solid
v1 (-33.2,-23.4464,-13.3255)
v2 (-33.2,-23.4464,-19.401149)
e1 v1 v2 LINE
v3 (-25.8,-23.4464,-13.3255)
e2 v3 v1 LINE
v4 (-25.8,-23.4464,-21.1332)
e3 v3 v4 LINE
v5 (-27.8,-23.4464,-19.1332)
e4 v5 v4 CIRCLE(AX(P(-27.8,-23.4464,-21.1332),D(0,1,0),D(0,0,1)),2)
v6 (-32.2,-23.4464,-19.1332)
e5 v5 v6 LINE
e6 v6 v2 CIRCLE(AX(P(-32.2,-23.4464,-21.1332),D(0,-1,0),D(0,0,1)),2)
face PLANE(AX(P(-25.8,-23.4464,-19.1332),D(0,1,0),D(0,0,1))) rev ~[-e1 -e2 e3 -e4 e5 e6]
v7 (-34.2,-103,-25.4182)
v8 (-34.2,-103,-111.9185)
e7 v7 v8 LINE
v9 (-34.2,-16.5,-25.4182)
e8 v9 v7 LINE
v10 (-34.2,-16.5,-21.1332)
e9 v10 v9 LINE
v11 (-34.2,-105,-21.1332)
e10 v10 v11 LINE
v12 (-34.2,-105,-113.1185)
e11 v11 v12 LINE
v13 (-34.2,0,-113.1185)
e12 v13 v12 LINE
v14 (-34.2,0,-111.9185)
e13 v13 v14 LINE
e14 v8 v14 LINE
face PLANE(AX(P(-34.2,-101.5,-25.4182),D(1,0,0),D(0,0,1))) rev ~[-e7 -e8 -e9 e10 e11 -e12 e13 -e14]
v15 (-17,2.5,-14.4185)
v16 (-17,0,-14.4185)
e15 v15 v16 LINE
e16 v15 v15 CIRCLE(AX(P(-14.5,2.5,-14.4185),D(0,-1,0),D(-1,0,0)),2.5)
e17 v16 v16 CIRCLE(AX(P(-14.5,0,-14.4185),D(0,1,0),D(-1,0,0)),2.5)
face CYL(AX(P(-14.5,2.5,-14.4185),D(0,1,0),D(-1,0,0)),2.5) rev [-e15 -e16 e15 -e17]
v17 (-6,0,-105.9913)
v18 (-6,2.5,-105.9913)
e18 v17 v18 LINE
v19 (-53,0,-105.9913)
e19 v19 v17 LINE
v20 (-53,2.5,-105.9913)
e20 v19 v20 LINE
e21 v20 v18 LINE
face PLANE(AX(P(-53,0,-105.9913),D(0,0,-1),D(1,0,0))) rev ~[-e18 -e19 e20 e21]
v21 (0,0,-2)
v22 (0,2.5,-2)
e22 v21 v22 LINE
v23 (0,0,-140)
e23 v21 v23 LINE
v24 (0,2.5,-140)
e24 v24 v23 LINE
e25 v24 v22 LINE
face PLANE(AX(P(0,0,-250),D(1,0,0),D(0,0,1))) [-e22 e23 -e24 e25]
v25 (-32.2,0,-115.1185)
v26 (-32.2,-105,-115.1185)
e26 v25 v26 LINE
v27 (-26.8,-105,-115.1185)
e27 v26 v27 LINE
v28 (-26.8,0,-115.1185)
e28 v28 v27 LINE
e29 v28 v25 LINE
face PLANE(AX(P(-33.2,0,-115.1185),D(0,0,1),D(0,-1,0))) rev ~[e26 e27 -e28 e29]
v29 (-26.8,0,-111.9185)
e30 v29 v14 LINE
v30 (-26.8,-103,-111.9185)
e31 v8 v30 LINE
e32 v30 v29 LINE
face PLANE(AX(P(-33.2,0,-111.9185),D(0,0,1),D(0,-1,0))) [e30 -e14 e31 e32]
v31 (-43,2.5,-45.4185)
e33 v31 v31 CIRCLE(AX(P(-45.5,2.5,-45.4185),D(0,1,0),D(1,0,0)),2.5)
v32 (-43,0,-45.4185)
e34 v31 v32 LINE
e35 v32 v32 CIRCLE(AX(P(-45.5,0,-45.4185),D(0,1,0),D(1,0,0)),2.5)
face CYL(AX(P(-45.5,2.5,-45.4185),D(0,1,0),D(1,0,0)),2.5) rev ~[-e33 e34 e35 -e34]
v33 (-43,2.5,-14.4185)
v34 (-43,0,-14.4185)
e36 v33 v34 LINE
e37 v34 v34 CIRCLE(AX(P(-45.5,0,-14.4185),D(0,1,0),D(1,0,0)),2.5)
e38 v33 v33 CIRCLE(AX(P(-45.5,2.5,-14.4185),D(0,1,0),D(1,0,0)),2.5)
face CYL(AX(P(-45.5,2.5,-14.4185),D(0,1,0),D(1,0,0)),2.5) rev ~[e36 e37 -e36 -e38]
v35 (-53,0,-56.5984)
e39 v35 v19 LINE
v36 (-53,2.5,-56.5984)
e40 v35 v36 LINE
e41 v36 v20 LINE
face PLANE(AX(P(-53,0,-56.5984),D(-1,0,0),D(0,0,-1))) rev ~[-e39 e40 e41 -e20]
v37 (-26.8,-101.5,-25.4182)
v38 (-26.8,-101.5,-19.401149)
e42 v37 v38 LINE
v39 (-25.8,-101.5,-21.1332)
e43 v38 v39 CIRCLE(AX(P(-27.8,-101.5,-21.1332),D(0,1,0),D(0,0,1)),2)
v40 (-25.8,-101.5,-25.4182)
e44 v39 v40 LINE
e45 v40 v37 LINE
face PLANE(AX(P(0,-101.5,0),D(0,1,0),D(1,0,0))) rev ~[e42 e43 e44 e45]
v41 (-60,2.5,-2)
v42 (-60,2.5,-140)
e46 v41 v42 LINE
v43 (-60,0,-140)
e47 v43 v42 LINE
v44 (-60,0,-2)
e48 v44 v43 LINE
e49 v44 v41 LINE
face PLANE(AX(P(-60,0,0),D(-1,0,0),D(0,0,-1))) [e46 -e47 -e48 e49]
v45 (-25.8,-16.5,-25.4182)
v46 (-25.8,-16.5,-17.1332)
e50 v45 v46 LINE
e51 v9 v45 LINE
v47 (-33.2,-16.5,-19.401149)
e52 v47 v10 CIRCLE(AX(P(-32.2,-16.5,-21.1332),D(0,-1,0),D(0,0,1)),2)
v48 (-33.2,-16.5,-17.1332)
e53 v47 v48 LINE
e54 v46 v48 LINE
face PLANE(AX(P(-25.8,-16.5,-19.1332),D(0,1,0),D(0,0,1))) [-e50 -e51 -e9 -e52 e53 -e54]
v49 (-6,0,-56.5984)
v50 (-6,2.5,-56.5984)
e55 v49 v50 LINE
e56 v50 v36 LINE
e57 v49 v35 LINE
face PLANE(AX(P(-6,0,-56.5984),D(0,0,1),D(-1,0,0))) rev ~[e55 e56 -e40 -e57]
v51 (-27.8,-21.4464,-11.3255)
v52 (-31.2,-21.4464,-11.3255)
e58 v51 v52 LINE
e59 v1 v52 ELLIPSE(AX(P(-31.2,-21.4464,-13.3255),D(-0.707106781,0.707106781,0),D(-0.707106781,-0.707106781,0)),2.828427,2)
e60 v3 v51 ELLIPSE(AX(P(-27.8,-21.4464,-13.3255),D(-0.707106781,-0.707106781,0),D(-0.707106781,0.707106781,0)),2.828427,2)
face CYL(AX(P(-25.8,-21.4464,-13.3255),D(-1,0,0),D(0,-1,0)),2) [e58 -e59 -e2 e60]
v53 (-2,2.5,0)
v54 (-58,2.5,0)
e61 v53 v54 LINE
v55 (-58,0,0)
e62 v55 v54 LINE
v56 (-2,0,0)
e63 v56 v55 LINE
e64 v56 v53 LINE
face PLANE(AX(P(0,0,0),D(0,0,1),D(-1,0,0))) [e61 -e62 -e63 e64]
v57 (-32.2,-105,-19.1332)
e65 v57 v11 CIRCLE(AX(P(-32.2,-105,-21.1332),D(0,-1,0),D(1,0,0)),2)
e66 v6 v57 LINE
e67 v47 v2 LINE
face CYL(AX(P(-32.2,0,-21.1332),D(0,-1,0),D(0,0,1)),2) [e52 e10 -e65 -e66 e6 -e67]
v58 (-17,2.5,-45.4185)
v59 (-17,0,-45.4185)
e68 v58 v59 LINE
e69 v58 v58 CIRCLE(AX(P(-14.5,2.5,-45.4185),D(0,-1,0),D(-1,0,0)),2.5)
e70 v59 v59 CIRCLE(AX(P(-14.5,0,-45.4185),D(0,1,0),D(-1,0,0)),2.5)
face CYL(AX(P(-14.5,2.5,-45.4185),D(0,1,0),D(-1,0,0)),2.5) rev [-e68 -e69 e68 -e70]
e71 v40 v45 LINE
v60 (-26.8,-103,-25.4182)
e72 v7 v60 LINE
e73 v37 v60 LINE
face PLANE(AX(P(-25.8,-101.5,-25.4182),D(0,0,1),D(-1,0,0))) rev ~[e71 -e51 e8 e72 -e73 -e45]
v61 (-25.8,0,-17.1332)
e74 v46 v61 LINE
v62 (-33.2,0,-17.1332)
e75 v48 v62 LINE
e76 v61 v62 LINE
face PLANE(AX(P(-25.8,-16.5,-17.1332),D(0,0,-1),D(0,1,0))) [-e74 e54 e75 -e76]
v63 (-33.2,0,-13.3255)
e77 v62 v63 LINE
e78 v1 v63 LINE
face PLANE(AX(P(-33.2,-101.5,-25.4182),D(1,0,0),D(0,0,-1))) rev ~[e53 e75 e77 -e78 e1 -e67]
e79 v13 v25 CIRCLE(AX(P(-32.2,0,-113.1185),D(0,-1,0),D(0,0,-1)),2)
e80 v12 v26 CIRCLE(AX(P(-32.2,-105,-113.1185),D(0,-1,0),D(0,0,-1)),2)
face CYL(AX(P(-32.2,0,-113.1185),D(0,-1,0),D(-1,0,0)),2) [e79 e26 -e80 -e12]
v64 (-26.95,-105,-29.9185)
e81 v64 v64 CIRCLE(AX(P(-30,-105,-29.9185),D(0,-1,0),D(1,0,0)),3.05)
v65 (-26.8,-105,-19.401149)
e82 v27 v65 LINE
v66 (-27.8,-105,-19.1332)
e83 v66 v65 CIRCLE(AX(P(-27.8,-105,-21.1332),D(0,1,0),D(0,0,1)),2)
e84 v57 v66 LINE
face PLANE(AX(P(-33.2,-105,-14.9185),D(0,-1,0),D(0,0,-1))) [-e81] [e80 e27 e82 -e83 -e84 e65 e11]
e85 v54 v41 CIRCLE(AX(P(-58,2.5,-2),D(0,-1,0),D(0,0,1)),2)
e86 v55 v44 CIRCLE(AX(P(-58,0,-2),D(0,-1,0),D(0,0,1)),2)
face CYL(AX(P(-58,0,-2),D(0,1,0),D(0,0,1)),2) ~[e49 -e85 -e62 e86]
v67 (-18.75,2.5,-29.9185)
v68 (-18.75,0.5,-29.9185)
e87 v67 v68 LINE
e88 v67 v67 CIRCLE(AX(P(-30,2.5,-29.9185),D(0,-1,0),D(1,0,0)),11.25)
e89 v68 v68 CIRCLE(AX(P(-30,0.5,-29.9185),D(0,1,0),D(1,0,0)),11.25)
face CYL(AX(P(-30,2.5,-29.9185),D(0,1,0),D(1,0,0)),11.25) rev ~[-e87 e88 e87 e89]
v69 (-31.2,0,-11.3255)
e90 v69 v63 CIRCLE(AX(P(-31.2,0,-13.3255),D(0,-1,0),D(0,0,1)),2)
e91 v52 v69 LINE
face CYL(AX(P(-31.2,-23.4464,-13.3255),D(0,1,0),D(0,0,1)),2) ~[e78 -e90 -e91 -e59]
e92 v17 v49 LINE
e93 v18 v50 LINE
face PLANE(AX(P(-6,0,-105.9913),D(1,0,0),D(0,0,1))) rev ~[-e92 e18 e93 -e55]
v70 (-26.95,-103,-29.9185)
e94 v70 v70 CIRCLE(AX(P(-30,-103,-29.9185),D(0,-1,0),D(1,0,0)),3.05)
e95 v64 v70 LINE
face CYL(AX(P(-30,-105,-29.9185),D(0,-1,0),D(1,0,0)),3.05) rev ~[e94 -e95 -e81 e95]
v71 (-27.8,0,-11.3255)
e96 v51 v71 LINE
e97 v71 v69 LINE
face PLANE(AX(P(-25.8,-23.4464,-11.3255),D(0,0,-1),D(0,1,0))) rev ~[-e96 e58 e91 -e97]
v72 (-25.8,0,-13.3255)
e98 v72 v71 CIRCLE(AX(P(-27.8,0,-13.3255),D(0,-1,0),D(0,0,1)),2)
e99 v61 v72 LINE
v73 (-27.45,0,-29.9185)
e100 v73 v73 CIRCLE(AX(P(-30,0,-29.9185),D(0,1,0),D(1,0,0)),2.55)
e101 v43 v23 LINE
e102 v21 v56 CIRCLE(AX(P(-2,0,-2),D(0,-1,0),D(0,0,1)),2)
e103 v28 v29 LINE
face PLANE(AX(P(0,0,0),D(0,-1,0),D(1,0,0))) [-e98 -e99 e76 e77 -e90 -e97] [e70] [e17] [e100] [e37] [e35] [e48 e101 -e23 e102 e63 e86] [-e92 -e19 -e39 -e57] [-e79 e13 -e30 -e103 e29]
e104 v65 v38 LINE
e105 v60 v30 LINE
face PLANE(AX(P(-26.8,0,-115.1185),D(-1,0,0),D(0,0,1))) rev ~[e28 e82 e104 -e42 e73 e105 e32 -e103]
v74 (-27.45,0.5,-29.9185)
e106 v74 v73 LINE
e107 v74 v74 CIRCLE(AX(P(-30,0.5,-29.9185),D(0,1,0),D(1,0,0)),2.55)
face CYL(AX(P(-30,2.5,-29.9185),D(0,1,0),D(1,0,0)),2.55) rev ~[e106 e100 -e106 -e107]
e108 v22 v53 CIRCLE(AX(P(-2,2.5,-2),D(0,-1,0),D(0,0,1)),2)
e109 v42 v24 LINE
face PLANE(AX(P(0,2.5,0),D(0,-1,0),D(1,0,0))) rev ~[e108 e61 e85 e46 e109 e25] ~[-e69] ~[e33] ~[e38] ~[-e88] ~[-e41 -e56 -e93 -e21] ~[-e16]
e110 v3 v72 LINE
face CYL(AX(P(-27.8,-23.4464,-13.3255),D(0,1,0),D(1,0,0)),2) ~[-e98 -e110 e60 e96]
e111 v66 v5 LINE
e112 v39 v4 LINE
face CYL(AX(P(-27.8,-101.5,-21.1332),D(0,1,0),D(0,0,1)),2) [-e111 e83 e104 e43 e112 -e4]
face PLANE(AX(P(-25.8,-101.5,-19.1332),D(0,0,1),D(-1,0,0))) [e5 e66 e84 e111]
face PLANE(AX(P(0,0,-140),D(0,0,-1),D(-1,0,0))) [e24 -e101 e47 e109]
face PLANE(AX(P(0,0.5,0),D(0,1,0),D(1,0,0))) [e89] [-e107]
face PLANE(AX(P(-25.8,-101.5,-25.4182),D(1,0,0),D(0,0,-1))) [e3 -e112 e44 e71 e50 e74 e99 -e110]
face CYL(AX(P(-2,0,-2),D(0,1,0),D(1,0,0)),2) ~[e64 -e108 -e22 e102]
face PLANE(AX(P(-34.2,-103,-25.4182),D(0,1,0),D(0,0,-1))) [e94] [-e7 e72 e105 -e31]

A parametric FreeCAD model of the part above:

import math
import FreeCAD as App
import Part
import Sketcher

V = App.Vector
Q = App.Units.Quantity


def edges_at(feature, points):
    """Names of the edges that pass closest to the given points."""
    edges = feature.Shape.Edges
    near = lambda p: min(range(len(edges)), key=lambda i: edges[i].distToShape(Part.Vertex(*p))[0])
    return sorted({f"Edge{near(p) + 1}" for p in points})

doc = App.newDocument("Part")
body = doc.addObject("PartDesign::Body", "Body")

# Sketch on XZ plane
sketch1 = body.newObject("Sketcher::SketchObject", "Sketch")
sketch1.AttachmentSupport = (doc.getObject("XZ_Plane"), [""])
sketch1.MapMode = "FlatFace"
sketch1.addGeometry([
    Part.LineSegment(V(-60, 0, 0), V(0, 0, 0)),
    Part.LineSegment(V(0, 0, 0), V(0, -140, 0)),
    Part.LineSegment(V(0, -140, 0), V(-60, -140, 0)),
    Part.LineSegment(V(-60, -140, 0), V(-60, 0, 0)),
], False)
sketch1.addConstraint([
    Sketcher.Constraint("Coincident", 0, 2, 1, 1),
    Sketcher.Constraint("Coincident", 1, 2, 2, 1),
    Sketcher.Constraint("Coincident", 2, 2, 3, 1),
    Sketcher.Constraint("Coincident", 3, 2, 0, 1),
    Sketcher.Constraint("Horizontal", 0),
    Sketcher.Constraint("Vertical", 1),
    Sketcher.Constraint("Horizontal", 2),
    Sketcher.Constraint("Vertical", 3),
    Sketcher.Constraint("Coincident", 0, 2, -1, 1),
    Sketcher.Constraint("DistanceX", 0, 1, 0, 2, Q("60 mm")),
    Sketcher.Constraint("DistanceY", 1, 2, 1, 1, Q("140 mm")),
])
pad1 = body.newObject("PartDesign::Pad", "Pad")
pad1.Profile = sketch1
pad1.Length = 2.5
pad1.Reversed = True

# Sketch on XZ plane
sketch2 = body.newObject("Sketcher::SketchObject", "Sketch001")
sketch2.AttachmentSupport = (doc.getObject("XZ_Plane"), [""])
sketch2.MapMode = "FlatFace"
sketch2.AttachmentOffset = App.Placement(V(0, 0, -2.5), App.Rotation())
sketch2.addGeometry(Part.Circle(V(-30, -29.9, 0), V(0, 0, 1), 2.5), False)
sketch2.addConstraint([
    Sketcher.Constraint("Diameter", 0, Q("5.1 mm")),
    Sketcher.Constraint("DistanceX", 0, 3, -1, 1, Q("30 mm")),
    Sketcher.Constraint("DistanceY", 0, 3, -1, 1, Q("29.9185 mm")),
])
pocket1 = body.newObject("PartDesign::Pocket", "Pocket")
pocket1.Profile = sketch2
pocket1.Length = 10
pocket1.Midplane = True

# Sketch on XZ plane
sketch3 = body.newObject("Sketcher::SketchObject", "Sketch002")
sketch3.AttachmentSupport = (doc.getObject("XZ_Plane"), [""])
sketch3.MapMode = "FlatFace"
sketch3.AttachmentOffset = App.Placement(V(0, 0, -2.5), App.Rotation())
sketch3.addGeometry(Part.Circle(V(-30, -30, 0), V(0, 0, 1), 11), False)
sketch3.addConstraint([
    Sketcher.Constraint("Diameter", 0, Q("22.5 mm")),
    Sketcher.Constraint("DistanceX", 0, 3, -1, 1, Q("30 mm")),
    Sketcher.Constraint("DistanceY", 0, 3, -1, 1, Q("29.9185 mm")),
])
pocket2 = body.newObject("PartDesign::Pocket", "Pocket001")
pocket2.Profile = sketch3
pocket2.Length = 10
pocket2.Reversed = True

# Sketch on XZ plane
sketch4 = body.newObject("Sketcher::SketchObject", "Sketch003")
sketch4.AttachmentSupport = (doc.getObject("XZ_Plane"), [""])
sketch4.MapMode = "FlatFace"
sketch4.AttachmentOffset = App.Placement(V(0, 0, -2.5), App.Rotation())
sketch4.addGeometry(Part.Circle(V(-30, -30, 0), V(0, 0, 1), 11), False)
sketch4.addConstraint([
    Sketcher.Constraint("Diameter", 0, Q("22.5 mm")),
    Sketcher.Constraint("DistanceX", 0, 3, -1, 1, Q("30 mm")),
    Sketcher.Constraint("DistanceY", 0, 3, -1, 1, Q("29.9185 mm")),
])
pocket3 = body.newObject("PartDesign::Pocket", "Pocket002")
pocket3.Profile = sketch4
pocket3.Length = 10
pocket3.Reversed = True

# Sketch on XZ plane
sketch5 = body.newObject("Sketcher::SketchObject", "Sketch004")
sketch5.AttachmentSupport = (doc.getObject("XZ_Plane"), [""])
sketch5.MapMode = "FlatFace"
sketch5.addGeometry([
    Part.LineSegment(V(-26.8, -115.1, 0), V(-26.8, -111.9, 0)),
    Part.LineSegment(V(-26.8, -111.9, 0), V(-33.2, -111.9, 0)),
    Part.LineSegment(V(-33.2, -111.9, 0), V(-33.2, -115.1, 0)),
    Part.LineSegment(V(-33.2, -115.1, 0), V(-26.8, -115.1, 0)),
], False)
sketch5.addConstraint([
    Sketcher.Constraint("Coincident", 0, 2, 1, 1),
    Sketcher.Constraint("Coincident", 1, 2, 2, 1),
    Sketcher.Constraint("Coincident", 2, 2, 3, 1),
    Sketcher.Constraint("Coincident", 3, 2, 0, 1),
    Sketcher.Constraint("Vertical", 0),
    Sketcher.Constraint("Horizontal", 1),
    Sketcher.Constraint("Vertical", 2),
    Sketcher.Constraint("Horizontal", 3),
    Sketcher.Constraint("DistanceY", 0, 1, 0, 2, Q("3.2 mm")),
    Sketcher.Constraint("DistanceX", 1, 2, 1, 1, Q("6.4 mm")),
    Sketcher.Constraint("DistanceX", 0, 2, -1, 1, Q("26.8 mm")),
    Sketcher.Constraint("DistanceY", 0, 2, -1, 1, Q("111.9185 mm")),
])
pad2 = body.newObject("PartDesign::Pad", "Pad001")
pad2.Profile = sketch5
pad2.Length = 105

# Sketch on XZ plane
sketch6 = body.newObject("Sketcher::SketchObject", "Sketch005")
sketch6.AttachmentSupport = (doc.getObject("XZ_Plane"), [""])
sketch6.MapMode = "FlatFace"
sketch6.AttachmentOffset = App.Placement(V(0, 0, 105), App.Rotation())
sketch6.addGeometry([
    Part.LineSegment(V(-33.2, -111.9, 0), V(-26.8, -111.9, 0)),  # 0
    Part.LineSegment(V(-26.8, -111.9, 0), V(-26.8, -14.9, 0)),  # 1
    Part.LineSegment(V(-26.8, -14.9, 0), V(-33.2, -14.9, 0)),  # 2
    Part.LineSegment(V(-33.2, -14.9, 0), V(-33.2, -111.9, 0)),  # 3
    Part.Circle(V(-30, -29.9, 0), V(0, 0, 1), 2.5),  # 4
], False)
sketch6.addConstraint([
    Sketcher.Constraint("Coincident", 0, 2, 1, 1),
    Sketcher.Constraint("Coincident", 1, 2, 2, 1),
    Sketcher.Constraint("Coincident", 2, 2, 3, 1),
    Sketcher.Constraint("Coincident", 3, 2, 0, 1),
    Sketcher.Constraint("Horizontal", 0),
    Sketcher.Constraint("Vertical", 1),
    Sketcher.Constraint("Horizontal", 2),
    Sketcher.Constraint("Vertical", 3),
    Sketcher.Constraint("DistanceY", 4, 3, 1, 2, Q("15 mm")),
    Sketcher.Constraint("Diameter", 4, Q("5.1 mm")),
    Sketcher.Constraint("DistanceY", 1, 1, 1, 2, Q("97 mm")),
    Sketcher.Constraint("DistanceX", 0, 1, 0, 2, Q("6.4 mm")),
    Sketcher.Constraint("DistanceX", 4, 3, -1, 1, Q("30 mm")),
    Sketcher.Constraint("DistanceX", 0, 2, -1, 1, Q("26.8 mm")),
    Sketcher.Constraint("DistanceY", 4, 3, -1, 1, Q("29.9185 mm")),
])
pad3 = body.newObject("PartDesign::Pad", "Pad002")
pad3.Profile = sketch6
pad3.Length = 3.5
pad3.Reversed = True

# Sketch on XZ plane
sketch7 = body.newObject("Sketcher::SketchObject", "Sketch006")
sketch7.AttachmentSupport = (doc.getObject("XZ_Plane"), [""])
sketch7.MapMode = "FlatFace"
sketch7.AttachmentOffset = App.Placement(V(0, 0, 105), App.Rotation())
sketch7.addGeometry([
    Part.ArcOfCircle(Part.Circle(V(-30, -29.9, 0), V(0, 0, 1), 11.2), math.radians(73), math.radians(107)),
    Part.LineSegment(V(-26.8, -19.1, 0), V(-26.8, -14.9, 0)),
    Part.LineSegment(V(-26.8, -14.9, 0), V(-33.2, -14.9, 0)),
    Part.LineSegment(V(-33.2, -14.9, 0), V(-33.2, -19.1, 0)),
], False)
sketch7.addConstraint([
    Sketcher.Constraint("Coincident", 0, 1, 1, 1),
    Sketcher.Constraint("Coincident", 1, 2, 2, 1),
    Sketcher.Constraint("Coincident", 2, 2, 3, 1),
    Sketcher.Constraint("Coincident", 3, 2, 0, 2),
    Sketcher.Constraint("Vertical", 1),
    Sketcher.Constraint("Horizontal", 2),
    Sketcher.Constraint("Vertical", 3),
    Sketcher.Constraint("Horizontal", 0, 1, 3, 2),
    Sketcher.Constraint("Radius", 0, Q("11.25 mm")),
    Sketcher.Constraint("DistanceX", 2, 2, 2, 1, Q("6.4 mm")),
    Sketcher.Constraint("DistanceX", 0, 3, -1, 1, Q("30 mm")),
    Sketcher.Constraint("DistanceY", 0, 3, 1, 2, Q("15 mm")),
    Sketcher.Constraint("DistanceY", 0, 3, -1, 1, Q("29.9185 mm")),
])
pad4 = body.newObject("PartDesign::Pad", "Pad003")
pad4.Profile = sketch7
pad4.Length = 105
pad4.Reversed = True

# Sketch on XZ plane
sketch8 = body.newObject("Sketcher::SketchObject", "Sketch007")
sketch8.AttachmentSupport = (doc.getObject("XZ_Plane"), [""])
sketch8.MapMode = "FlatFace"
sketch8.AttachmentOffset = App.Placement(V(0, 0, 105), App.Rotation())
sketch8.addGeometry([
    Part.Circle(V(-30, -29.9, 0), V(0, 0, 1), 3),
    Part.Circle(V(-30, -29.9, 0), V(0, 0, 1), 2.5),
], False)
sketch8.addConstraint([
    Sketcher.Constraint("Coincident", 1, 3, 0, 3),
    Sketcher.Constraint("Diameter", 0, Q("6.1 mm")),
    Sketcher.Constraint("Diameter", 1, Q("5.1 mm")),
    Sketcher.Constraint("DistanceX", 0, 3, -1, 1, Q("30 mm")),
    Sketcher.Constraint("DistanceY", 0, 3, -1, 1, Q("29.9185 mm")),
])
pocket4 = body.newObject("PartDesign::Pocket", "Pocket003")
pocket4.Profile = sketch8
pocket4.Length = 3.5

# Sketch on YZ plane
sketch9 = body.newObject("Sketcher::SketchObject", "Sketch008")
sketch9.AttachmentSupport = (doc.getObject("YZ_Plane"), [""])
sketch9.MapMode = "FlatFace"
sketch9.AttachmentOffset = App.Placement(V(0, 0, -33.2), App.Rotation())
sketch9.addGeometry([
    Part.LineSegment(V(-101.5, -19.1, 0), V(-101.5, -111.9, 0)),  # 0
    Part.LineSegment(V(-101.5, -111.9, 0), V(0, -111.9, 0)),  # 1
    Part.LineSegment(V(0, -111.9, 0), V(0, -115.1, 0)),  # 2
    Part.LineSegment(V(0, -115.1, 0), V(-105, -115.1, 0)),  # 3
    Part.LineSegment(V(-105, -115.1, 0), V(-105, -14.9, 0)),  # 4
    Part.LineSegment(V(-105, -14.9, 0), V(0, -14.9, 0)),  # 5
    Part.LineSegment(V(0, -14.9, 0), V(0, -19.1, 0)),  # 6
    Part.LineSegment(V(0, -19.1, 0), V(-101.5, -19.1, 0)),  # 7
], False)
sketch9.addConstraint([
    Sketcher.Constraint("Coincident", 0, 2, 1, 1),
    Sketcher.Constraint("Coincident", 1, 2, 2, 1),
    Sketcher.Constraint("Coincident", 2, 2, 3, 1),
    Sketcher.Constraint("Coincident", 3, 2, 4, 1),
    Sketcher.Constraint("Coincident", 4, 2, 5, 1),
    Sketcher.Constraint("Coincident", 5, 2, 6, 1),
    Sketcher.Constraint("Coincident", 6, 2, 7, 1),
    Sketcher.Constraint("Coincident", 7, 2, 0, 1),
    Sketcher.Constraint("Vertical", 0),
    Sketcher.Constraint("Horizontal", 1),
    Sketcher.Constraint("Vertical", 2),
    Sketcher.Constraint("Horizontal", 3),
    Sketcher.Constraint("Vertical", 4),
    Sketcher.Constraint("Horizontal", 5),
    Sketcher.Constraint("Vertical", 6),
    Sketcher.Constraint("Horizontal", 7),
    Sketcher.Constraint("PointOnObject", 1, 2, -2),
    Sketcher.Constraint("PointOnObject", 5, 2, -2),
    Sketcher.Constraint("DistanceX", 3, 2, 3, 1, Q("105 mm")),
    Sketcher.Constraint("DistanceX", 1, 1, 1, 2, Q("101.5 mm")),
    Sketcher.Constraint("DistanceY", 2, 2, 2, 1, Q("3.2 mm")),
    Sketcher.Constraint("DistanceY", 4, 1, 4, 2, Q("100.2 mm")),
    Sketcher.Constraint("DistanceY", 0, 2, 0, 1, Q("92.7853 mm")),
    Sketcher.Constraint("DistanceY", 0, 2, -1, 1, Q("111.9185 mm")),
])
pad5 = body.newObject("PartDesign::Pad", "Pad004")
pad5.Profile = sketch9
pad5.Length = 1
pad5.Reversed = True

# Sketch on XZ plane
sketch10 = body.newObject("Sketcher::SketchObject", "Sketch009")
sketch10.AttachmentSupport = (doc.getObject("XZ_Plane"), [""])
sketch10.MapMode = "FlatFace"
sketch10.AttachmentOffset = App.Placement(V(0, 0, -2.5), App.Rotation())
sketch10.addGeometry([
    Part.Circle(V(-30, -29.9, 0), V(0, 0, 1), 11.2),
    Part.Circle(V(-30, -29.9, 0), V(0, 0, 1), 2.5),
], False)
sketch10.addConstraint([
    Sketcher.Constraint("Coincident", 1, 3, 0, 3),
    Sketcher.Constraint("Diameter", 0, Q("22.5 mm")),
    Sketcher.Constraint("Diameter", 1, Q("5.1 mm")),
    Sketcher.Constraint("DistanceX", 0, 3, -1, 1, Q("30 mm")),
    Sketcher.Constraint("DistanceY", 0, 3, -1, 1, Q("29.9185 mm")),
])
pad6 = body.newObject("PartDesign::Pad", "Pad005")
pad6.Profile = sketch10
pad6.Length = 2.5

# Sketch on XZ plane
sketch11 = body.newObject("Sketcher::SketchObject", "Sketch010")
sketch11.AttachmentSupport = (doc.getObject("XZ_Plane"), [""])
sketch11.MapMode = "FlatFace"
sketch11.AttachmentOffset = App.Placement(V(0, 0, -2.5), App.Rotation())
sketch11.addGeometry([
    Part.Circle(V(-30, -29.9, 0), V(0, 0, 1), 11.2),
    Part.Circle(V(-30, -29.9, 0), V(0, 0, 1), 2.5),
], False)
sketch11.addConstraint([
    Sketcher.Constraint("Coincident", 1, 3, 0, 3),
    Sketcher.Constraint("Diameter", 0, Q("22.5 mm")),
    Sketcher.Constraint("Diameter", 1, Q("5.1 mm")),
    Sketcher.Constraint("DistanceX", 0, 3, -1, 1, Q("30 mm")),
    Sketcher.Constraint("DistanceY", 0, 3, -1, 1, Q("29.9185 mm")),
])
pocket5 = body.newObject("PartDesign::Pocket", "Pocket004")
pocket5.Profile = sketch11
pocket5.Length = 2
pocket5.Reversed = True

# Sketch on XZ plane
sketch12 = body.newObject("Sketcher::SketchObject", "Sketch011")
sketch12.AttachmentSupport = (doc.getObject("XZ_Plane"), [""])
sketch12.MapMode = "FlatFace"
sketch12.AttachmentOffset = App.Placement(V(0, 0, 105), App.Rotation())
sketch12.addGeometry([
    Part.LineSegment(V(-34.2, -19.1, 0), V(-26.8, -19.1, 0)),
    Part.LineSegment(V(-26.8, -19.1, 0), V(-26.8, -14.9, 0)),
    Part.LineSegment(V(-26.8, -14.9, 0), V(-34.2, -14.9, 0)),
    Part.LineSegment(V(-34.2, -14.9, 0), V(-34.2, -19.1, 0)),
], False)
sketch12.addConstraint([
    Sketcher.Constraint("Coincident", 0, 2, 1, 1),
    Sketcher.Constraint("Coincident", 1, 2, 2, 1),
    Sketcher.Constraint("Coincident", 2, 2, 3, 1),
    Sketcher.Constraint("Coincident", 3, 2, 0, 1),
    Sketcher.Constraint("Horizontal", 0),
    Sketcher.Constraint("Vertical", 1),
    Sketcher.Constraint("Horizontal", 2),
    Sketcher.Constraint("Vertical", 3),
    Sketcher.Constraint("DistanceX", 0, 1, 0, 2, Q("7.4 mm")),
    Sketcher.Constraint("DistanceX", 0, 2, -1, 1, Q("26.8 mm")),
    Sketcher.Constraint("DistanceY", 1, 1, 1, 2, Q("4.2147 mm")),
    Sketcher.Constraint("DistanceY", 0, 2, -1, 1, Q("19.1332 mm")),
])
pocket6 = body.newObject("PartDesign::Pocket", "Pocket005")
pocket6.Profile = sketch12
pocket6.Length = 105

# Sketch on XZ plane
sketch13 = body.newObject("Sketcher::SketchObject", "Sketch012")
sketch13.AttachmentSupport = (doc.getObject("XZ_Plane"), [""])
sketch13.MapMode = "FlatFace"
sketch13.AttachmentOffset = App.Placement(V(0, 0, 101.5), App.Rotation())
sketch13.addGeometry([
    Part.LineSegment(V(-34, -19, 0), V(-26, -19, 0)),
    Part.LineSegment(V(-26, -19, 0), V(-26, -25, 0)),
    Part.LineSegment(V(-26, -25, 0), V(-34, -25, 0)),
    Part.LineSegment(V(-34, -25, 0), V(-34, -19, 0)),
], False)
sketch13.addConstraint([
    Sketcher.Constraint("Coincident", 0, 2, 1, 1),
    Sketcher.Constraint("Coincident", 1, 2, 2, 1),
    Sketcher.Constraint("Coincident", 2, 2, 3, 1),
    Sketcher.Constraint("Coincident", 3, 2, 0, 1),
    Sketcher.Constraint("Horizontal", 0),
    Sketcher.Constraint("Vertical", 1),
    Sketcher.Constraint("Horizontal", 2),
    Sketcher.Constraint("Vertical", 3),
    Sketcher.Constraint("DistanceY", 1, 2, 1, 1, Q("6.285 mm")),
    Sketcher.Constraint("DistanceX", 0, 1, 0, 2, Q("8.4 mm")),
    Sketcher.Constraint("DistanceX", 0, 2, -1, 1, Q("25.8 mm")),
    Sketcher.Constraint("DistanceY", 0, 2, -1, 1, Q("19.1332 mm")),
])
pad7 = body.newObject("PartDesign::Pad", "Pad006")
pad7.Profile = sketch13
pad7.Length = 101.5
pad7.Reversed = True
doc.recompute()

fillet = body.newObject("PartDesign::Fillet", "Fillet")
fillet.Base = (pad7, edges_at(pad7, [(-34.2, -52.5, -19.133), (-25.8, -50.75, -19.133), (-34.2, -52.5, -115.118)]))
fillet.Radius = 2

# Sketch on XZ plane
sketch14 = body.newObject("Sketcher::SketchObject", "Sketch013")
sketch14.AttachmentSupport = (doc.getObject("XZ_Plane"), [""])
sketch14.MapMode = "FlatFace"
sketch14.AttachmentOffset = App.Placement(V(0, 0, -2.5), App.Rotation())
sketch14.addGeometry([
    Part.Circle(V(-45.5, -14.4, 0), V(0, 0, 1), 2.5),
    Part.Circle(V(-45.5, -45.4, 0), V(0, 0, 1), 2.5),
], False)
sketch14.addConstraint([
    Sketcher.Constraint("Equal", 0, 1),
    Sketcher.Constraint("Vertical", 0, 3, 1, 3),
    Sketcher.Constraint("Diameter", 0, Q("5 mm")),
    Sketcher.Constraint("DistanceY", 1, 3, 0, 3, Q("31 mm")),
    Sketcher.Constraint("DistanceX", 0, 3, -1, 1, Q("45.5 mm")),
    Sketcher.Constraint("DistanceY", 0, 3, -1, 1, Q("14.4185 mm")),
])
pocket7 = body.newObject("PartDesign::Pocket", "Pocket006")
pocket7.Profile = sketch14
pocket7.Length = 10
pocket7.Reversed = True
doc.recompute()

datumplane = body.newObject("PartDesign::Plane", "DatumPlane")
datumplane.AttachmentSupport = (doc.getObject("YZ_Plane"), [""])
datumplane.MapMode = "FlatFace"
datumplane.AttachmentOffset = App.Placement(V(0, 0, -30), App.Rotation())
mirrored = body.newObject("PartDesign::Mirrored", "Mirrored")
mirrored.Originals = [pocket7]
mirrored.MirrorPlane = (datumplane, [""])
body.Tip = mirrored

# Sketch on XZ plane
sketch15 = body.newObject("Sketcher::SketchObject", "Sketch014")
sketch15.AttachmentSupport = (doc.getObject("XZ_Plane"), [""])
sketch15.MapMode = "FlatFace"
sketch15.addGeometry([
    Part.LineSegment(V(0, -250, 0), V(0, -140, 0)),  # 0
    Part.LineSegment(V(0, -140, 0), V(-110, -140, 0)),  # 1
    Part.LineSegment(V(-110, -140, 0), V(-110, -250, 0)),  # 2
    Part.LineSegment(V(-110, -250, 0), V(0, -250, 0)),  # 3
    Part.Circle(V(-103.1, -242, 0), V(0, 0, 1), 1.6),  # 4
    Part.Circle(V(-8, -242, 0), V(0, 0, 1), 1.6),  # 5
    Part.Circle(V(-103.1, -146.5, 0), V(0, 0, 1), 1.6),  # 6
    Part.Circle(V(-8, -146.5, 0), V(0, 0, 1), 1.6),  # 7
], False)
sketch15.addConstraint([
    Sketcher.Constraint("Coincident", 0, 2, 1, 1),
    Sketcher.Constraint("Coincident", 1, 2, 2, 1),
    Sketcher.Constraint("Coincident", 2, 2, 3, 1),
    Sketcher.Constraint("Coincident", 3, 2, 0, 1),
    Sketcher.Constraint("Vertical", 0),
    Sketcher.Constraint("Horizontal", 1),
    Sketcher.Constraint("Vertical", 2),
    Sketcher.Constraint("Horizontal", 3),
    Sketcher.Constraint("Equal", 4, 5),
    Sketcher.Constraint("Equal", 5, 6),
    Sketcher.Constraint("Equal", 6, 7),
    Sketcher.Constraint("PointOnObject", 0, 2, -2),
    Sketcher.Constraint("Horizontal", 4, 3, 5, 3),
    Sketcher.Constraint("Horizontal", 6, 3, 7, 3),
    Sketcher.Constraint("Vertical", 4, 3, 6, 3),
    Sketcher.Constraint("Vertical", 5, 3, 7, 3),
    Sketcher.Constraint("Equal", 3, 0),
    Sketcher.Constraint("Diameter", 4, Q("3.2 mm")),
    Sketcher.Constraint("DistanceX", 1, 2, 1, 1, Q("110 mm")),
    Sketcher.Constraint("DistanceX", 5, 3, -1, 1, Q("8 mm")),
    Sketcher.Constraint("DistanceY", 2, 2, 4, 3, Q("8 mm")),
    Sketcher.Constraint("DistanceX", 4, 3, 5, 3, Q("95.1 mm")),
    Sketcher.Constraint("DistanceY", 4, 3, 6, 3, Q("95.54 mm")),
    Sketcher.Constraint("DistanceY", 4, 3, -1, 1, Q("242 mm")),
])
pad8 = body.newObject("PartDesign::Pad", "Pad007")
pad8.Profile = sketch15
pad8.Length = 2.5
pad8.Reversed = True

# Sketch on YZ plane
sketch16 = body.newObject("Sketcher::SketchObject", "Sketch015")
sketch16.AttachmentSupport = (doc.getObject("YZ_Plane"), [""])
sketch16.MapMode = "FlatFace"
sketch16.AttachmentOffset = App.Placement(V(0, 0, -25.8), App.Rotation())
sketch16.addGeometry([
    Part.LineSegment(V(-16, -25, 0), V(0, -25, 0)),
    Part.LineSegment(V(0, -25, 0), V(0, -17, 0)),
    Part.LineSegment(V(0, -17, 0), V(-16, -17, 0)),
    Part.LineSegment(V(-16, -17, 0), V(-16, -25, 0)),
], False)
sketch16.addConstraint([
    Sketcher.Constraint("Coincident", 0, 2, 1, 1),
    Sketcher.Constraint("Coincident", 1, 2, 2, 1),
    Sketcher.Constraint("Coincident", 2, 2, 3, 1),
    Sketcher.Constraint("Coincident", 3, 2, 0, 1),
    Sketcher.Constraint("Horizontal", 0),
    Sketcher.Constraint("Vertical", 1),
    Sketcher.Constraint("Horizontal", 2),
    Sketcher.Constraint("Vertical", 3),
    Sketcher.Constraint("PointOnObject", 0, 2, -2),
    Sketcher.Constraint("DistanceX", 0, 1, 0, 2, Q("16.5 mm")),
    Sketcher.Constraint("DistanceY", 1, 1, 1, 2, Q("8.285 mm")),
    Sketcher.Constraint("DistanceY", 0, 2, -1, 1, Q("25.4182 mm")),
])
pocket8 = body.newObject("PartDesign::Pocket", "Pocket007")
pocket8.Profile = sketch16
pocket8.Length = 20.75
pocket8.Midplane = True

# Sketch on YZ plane
sketch17 = body.newObject("Sketcher::SketchObject", "Sketch016")
sketch17.AttachmentSupport = (doc.getObject("YZ_Plane"), [""])
sketch17.MapMode = "FlatFace"
sketch17.AttachmentOffset = App.Placement(V(0, 0, -25.8), App.Rotation())
sketch17.addGeometry([
    Part.LineSegment(V(-23.4, -19.1, 0), V(-16.5, -19.1, 0)),  # 0
    Part.LineSegment(V(-16.5, -19.1, 0), V(-16.5, -17.1, 0)),  # 1
    Part.LineSegment(V(-16.5, -17.1, 0), V(0, -17.1, 0)),  # 2
    Part.LineSegment(V(0, -17.1, 0), V(0, -11.3, 0)),  # 3
    Part.LineSegment(V(0, -11.3, 0), V(-23.4, -11.3, 0)),  # 4
    Part.LineSegment(V(-23.4, -11.3, 0), V(-23.4, -19.1, 0)),  # 5
], False)
sketch17.addConstraint([
    Sketcher.Constraint("Coincident", 0, 2, 1, 1),
    Sketcher.Constraint("Coincident", 1, 2, 2, 1),
    Sketcher.Constraint("Coincident", 2, 2, 3, 1),
    Sketcher.Constraint("Coincident", 3, 2, 4, 1),
    Sketcher.Constraint("Coincident", 4, 2, 5, 1),
    Sketcher.Constraint("Coincident", 5, 2, 0, 1),
    Sketcher.Constraint("Horizontal", 0),
    Sketcher.Constraint("Vertical", 1),
    Sketcher.Constraint("Horizontal", 2),
    Sketcher.Constraint("Vertical", 3),
    Sketcher.Constraint("Horizontal", 4),
    Sketcher.Constraint("Vertical", 5),
    Sketcher.Constraint("PointOnObject", 2, 2, -2),
    Sketcher.Constraint("DistanceX", 2, 1, 2, 2, Q("16.5 mm")),
    Sketcher.Constraint("DistanceY", 1, 1, 1, 2, Q("2 mm")),
    Sketcher.Constraint("DistanceX", 0, 1, 0, 2, Q("6.9464 mm")),
    Sketcher.Constraint("DistanceY", 3, 1, 3, 2, Q("5.8077 mm")),
    Sketcher.Constraint("DistanceY", 0, 2, -1, 1, Q("19.1332 mm")),
])
pad9 = body.newObject("PartDesign::Pad", "Pad008")
pad9.Profile = sketch17
pad9.Length = 7.4
pad9.Reversed = True

# Sketch on XY plane
sketch18 = body.newObject("Sketcher::SketchObject", "Sketch017")
sketch18.AttachmentSupport = (doc.getObject("XY_Plane"), [""])
sketch18.MapMode = "FlatFace"
sketch18.AttachmentOffset = App.Placement(V(0, 0, -19.1332), App.Rotation())
sketch18.addGeometry([
    Part.LineSegment(V(-27.8, -23.4, 0), V(-27.8, -16.5, 0)),  # 0
    Part.LineSegment(V(-27.8, -16.5, 0), V(-25.8, -16.5, 0)),  # 1
    Part.LineSegment(V(-25.8, -16.5, 0), V(-25.8, -23.4, 0)),  # 2
    Part.LineSegment(V(-25.8, -23.4, 0), V(-27.8, -23.4, 0)),  # 3
    Part.LineSegment(V(-32.2, -16.5, 0), V(-32.2, -23.4, 0)),  # 4
    Part.LineSegment(V(-32.2, -23.4, 0), V(-33.2, -23.4, 0)),  # 5
    Part.LineSegment(V(-33.2, -23.4, 0), V(-33.2, -16.5, 0)),  # 6
    Part.LineSegment(V(-33.2, -16.5, 0), V(-32.2, -16.5, 0)),  # 7
], False)
sketch18.addConstraint([
    Sketcher.Constraint("Coincident", 0, 2, 1, 1),
    Sketcher.Constraint("Coincident", 1, 2, 2, 1),
    Sketcher.Constraint("Coincident", 2, 2, 3, 1),
    Sketcher.Constraint("Coincident", 3, 2, 0, 1),
    Sketcher.Constraint("Coincident", 4, 2, 5, 1),
    Sketcher.Constraint("Coincident", 5, 2, 6, 1),
    Sketcher.Constraint("Coincident", 6, 2, 7, 1),
    Sketcher.Constraint("Coincident", 7, 2, 4, 1),
    Sketcher.Constraint("Vertical", 0),
    Sketcher.Constraint("Horizontal", 1),
    Sketcher.Constraint("Vertical", 2),
    Sketcher.Constraint("Horizontal", 3),
    Sketcher.Constraint("Vertical", 4),
    Sketcher.Constraint("Horizontal", 5),
    Sketcher.Constraint("Vertical", 6),
    Sketcher.Constraint("Horizontal", 7),
    Sketcher.Constraint("Horizontal", 3, 2, 4, 2),
    Sketcher.Constraint("Horizontal", 1, 2, 6, 2),
    Sketcher.Constraint("DistanceX", 1, 1, 1, 2, Q("2 mm")),
    Sketcher.Constraint("DistanceX", 5, 2, 5, 1, Q("1 mm")),
    Sketcher.Constraint("DistanceX", 0, 2, -1, 1, Q("27.8 mm")),
    Sketcher.Constraint("DistanceY", 0, 2, -1, 1, Q("16.5 mm")),
    Sketcher.Constraint("DistanceX", 4, 2, -1, 1, Q("32.2 mm")),
    Sketcher.Constraint("DistanceY", 0, 1, 0, 2, Q("6.9464 mm")),
])
pad10 = body.newObject("PartDesign::Pad", "Pad009")
pad10.Profile = sketch18
pad10.Length = 2.5
pad10.Reversed = True
doc.recompute()

fillet2 = body.newObject("PartDesign::Fillet", "Fillet001")
fillet2.Base = (pad10, edges_at(pad10, [(-29.5, -23.446, -11.325), (-25.8, -11.723, -11.325), (-33.2, -11.723, -11.325)]))
fillet2.Radius = 2

# Sketch on XZ plane
sketch19 = body.newObject("Sketcher::SketchObject", "Sketch018")
sketch19.AttachmentSupport = (doc.getObject("XZ_Plane"), [""])
sketch19.MapMode = "FlatFace"
sketch19.AttachmentOffset = App.Placement(V(0, 0, 105), App.Rotation())
sketch19.addGeometry(Part.Circle(V(-30, -29.9, 0), V(0, 0, 1), 2.8), False)
sketch19.addConstraint([
    Sketcher.Constraint("Diameter", 0, Q("5.5 mm")),
    Sketcher.Constraint("DistanceX", 0, 3, -1, 1, Q("30 mm")),
    Sketcher.Constraint("DistanceY", 0, 3, -1, 1, Q("29.9185 mm")),
])
pocket9 = body.newObject("PartDesign::Pocket", "Pocket008")
pocket9.Profile = sketch19
pocket9.Length = 2.5

# Sketch on XZ plane
sketch20 = body.newObject("Sketcher::SketchObject", "Sketch019")
sketch20.AttachmentSupport = (doc.getObject("XZ_Plane"), [""])
sketch20.MapMode = "FlatFace"
sketch20.AttachmentOffset = App.Placement(V(0, 0, -2.5), App.Rotation())
sketch20.addGeometry([
    Part.Circle(V(-8, -154.4, 0), V(0, 0, 1), 1.6),
    Part.Circle(V(-8, -234.4, 0), V(0, 0, 1), 1.6),
], False)
sketch20.addConstraint([
    Sketcher.Constraint("Equal", 0, 1),
    Sketcher.Constraint("Vertical", 0, 3, 1, 3),
    Sketcher.Constraint("Diameter", 0, Q("3.2 mm")),
    Sketcher.Constraint("DistanceY", 1, 3, 0, 3, Q("80 mm")),
    Sketcher.Constraint("DistanceX", 0, 3, -1, 1, Q("8 mm")),
    Sketcher.Constraint("DistanceY", 0, 3, -1, 1, Q("154.4212 mm")),
])
pocket10 = body.newObject("PartDesign::Pocket", "Pocket009")
pocket10.Profile = sketch20
pocket10.Length = 2.5
pocket10.Reversed = True

# Sketch on XZ plane
sketch21 = body.newObject("Sketcher::SketchObject", "Sketch020")
sketch21.AttachmentSupport = (doc.getObject("XZ_Plane"), [""])
sketch21.MapMode = "FlatFace"
sketch21.addGeometry([
    Part.LineSegment(V(-13, -239, 0), V(-13, -150, 0)),
    Part.LineSegment(V(-13, -150, 0), V(-100, -150, 0)),
    Part.LineSegment(V(-100, -150, 0), V(-100, -239, 0)),
    Part.LineSegment(V(-100, -239, 0), V(-13, -239, 0)),
], False)
sketch21.addConstraint([
    Sketcher.Constraint("Coincident", 0, 2, 1, 1),
    Sketcher.Constraint("Coincident", 1, 2, 2, 1),
    Sketcher.Constraint("Coincident", 2, 2, 3, 1),
    Sketcher.Constraint("Coincident", 3, 2, 0, 1),
    Sketcher.Constraint("Vertical", 0),
    Sketcher.Constraint("Horizontal", 1),
    Sketcher.Constraint("Vertical", 2),
    Sketcher.Constraint("Horizontal", 3),
    Sketcher.Constraint("DistanceY", 2, 2, -1, 1, Q("239 mm")),
    Sketcher.Constraint("DistanceY", 0, 1, 0, 2, Q("88.94 mm")),
    Sketcher.Constraint("DistanceX", 0, 2, -1, 1, Q("12.63 mm")),
    Sketcher.Constraint("DistanceX", 1, 2, 1, 1, Q("87.2027 mm")),
])
pocket11 = body.newObject("PartDesign::Pocket", "Pocket010")
pocket11.Profile = sketch21
pocket11.Length = 10
doc.recompute()

fillet3 = body.newObject("PartDesign::Fillet", "Fillet002")
fillet3.Base = (pocket11, edges_at(pocket11, [
    (-110, 1.25, -250),
    (0, 1.25, -250),
    (-110, 1.25, -140),
    (-60, 1.25, 0),
    (0, 1.25, 0),
]))
fillet3.Radius = 2

# Sketch on XZ plane
sketch22 = body.newObject("Sketcher::SketchObject", "Sketch021")
sketch22.AttachmentSupport = (doc.getObject("XZ_Plane"), [""])
sketch22.MapMode = "FlatFace"
sketch22.addGeometry([
    Part.LineSegment(V(-6, -106, 0), V(-6, -57, 0)),
    Part.LineSegment(V(-6, -57, 0), V(-53, -57, 0)),
    Part.LineSegment(V(-53, -57, 0), V(-53, -106, 0)),
    Part.LineSegment(V(-53, -106, 0), V(-6, -106, 0)),
], False)
sketch22.addConstraint([
    Sketcher.Constraint("Coincident", 0, 2, 1, 1),
    Sketcher.Constraint("Coincident", 1, 2, 2, 1),
    Sketcher.Constraint("Coincident", 2, 2, 3, 1),
    Sketcher.Constraint("Coincident", 3, 2, 0, 1),
    Sketcher.Constraint("Vertical", 0),
    Sketcher.Constraint("Horizontal", 1),
    Sketcher.Constraint("Vertical", 2),
    Sketcher.Constraint("Horizontal", 3),
    Sketcher.Constraint("DistanceX", 0, 2, -1, 1, Q("6 mm")),
    Sketcher.Constraint("DistanceX", 1, 2, 1, 1, Q("47 mm")),
    Sketcher.Constraint("DistanceY", 0, 1, 0, 2, Q("49.393 mm")),
    Sketcher.Constraint("DistanceY", 0, 2, -1, 1, Q("56.5984 mm")),
])
pocket12 = body.newObject("PartDesign::Pocket", "Pocket011")
pocket12.Profile = sketch22
pocket12.Length = 10

# Sketch on XZ plane
sketch23 = body.newObject("Sketcher::SketchObject", "Sketch022")
sketch23.AttachmentSupport = (doc.getObject("XZ_Plane"), [""])
sketch23.MapMode = "FlatFace"
sketch23.addGeometry([
    Part.LineSegment(V(0, -248, 0), V(0, -140, 0)),  # 0
    Part.LineSegment(V(0, -140, 0), V(-108, -140, 0)),  # 1
    Part.ArcOfCircle(Part.Circle(V(-108, -142, 0), V(0, 0, 1), 2), math.radians(90), math.radians(180)),  # 2
    Part.LineSegment(V(-110, -142, 0), V(-110, -248, 0)),  # 3
    Part.ArcOfCircle(Part.Circle(V(-108, -248, 0), V(0, 0, 1), 2), math.radians(180), math.radians(270)),  # 4
    Part.LineSegment(V(-108, -250, 0), V(-2, -250, 0)),  # 5
    Part.ArcOfCircle(Part.Circle(V(-2, -248, 0), V(0, 0, 1), 2), math.radians(-90), math.radians(0)),  # 6
    Part.Circle(V(-103.1, -242, 0), V(0, 0, 1), 1.6),  # 7
    Part.LineSegment(V(-12.6, -150.1, 0), V(-12.6, -239, 0)),  # 8
    Part.LineSegment(V(-12.6, -239, 0), V(-99.8, -239, 0)),  # 9
    Part.LineSegment(V(-99.8, -239, 0), V(-99.8, -150.1, 0)),  # 10
    Part.LineSegment(V(-99.8, -150.1, 0), V(-12.6, -150.1, 0)),  # 11
    Part.Circle(V(-103.1, -146.5, 0), V(0, 0, 1), 1.6),  # 12
    Part.Circle(V(-8, -242, 0), V(0, 0, 1), 1.6),  # 13
    Part.Circle(V(-8, -234.4, 0), V(0, 0, 1), 1.6),  # 14
    Part.Circle(V(-8, -154.4, 0), V(0, 0, 1), 1.6),  # 15
    Part.Circle(V(-8, -146.5, 0), V(0, 0, 1), 1.6),  # 16
], False)
sketch23.addConstraint([
    Sketcher.Constraint("Coincident", 0, 2, 1, 1),
    Sketcher.Constraint("Tangent", 1, 2, 2, 1),
    Sketcher.Constraint("Tangent", 2, 2, 3, 1),
    Sketcher.Constraint("Tangent", 3, 2, 4, 1),
    Sketcher.Constraint("Tangent", 4, 2, 5, 1),
    Sketcher.Constraint("Tangent", 5, 2, 6, 1),
    Sketcher.Constraint("Tangent", 6, 2, 0, 1),
    Sketcher.Constraint("Coincident", 8, 2, 9, 1),
    Sketcher.Constraint("Coincident", 9, 2, 10, 1),
    Sketcher.Constraint("Coincident", 10, 2, 11, 1),
    Sketcher.Constraint("Coincident", 11, 2, 8, 1),
    Sketcher.Constraint("Vertical", 0),
    Sketcher.Constraint("Horizontal", 1),
    Sketcher.Constraint("Vertical", 3),
    Sketcher.Constraint("Horizontal", 5),
    Sketcher.Constraint("Vertical", 8),
    Sketcher.Constraint("Horizontal", 9),
    Sketcher.Constraint("Vertical", 10),
    Sketcher.Constraint("Horizontal", 11),
    Sketcher.Constraint("Equal", 2, 4),
    Sketcher.Constraint("Equal", 4, 6),
    Sketcher.Constraint("Equal", 7, 12),
    Sketcher.Constraint("Equal", 12, 13),
    Sketcher.Constraint("Equal", 13, 14),
    Sketcher.Constraint("Equal", 14, 15),
    Sketcher.Constraint("Equal", 15, 16),
    Sketcher.Constraint("PointOnObject", 0, 2, -2),
    Sketcher.Constraint("Horizontal", 7, 3, 13, 3),
    Sketcher.Constraint("Horizontal", 12, 3, 16, 3),
    Sketcher.Constraint("Vertical", 7, 3, 12, 3),
    Sketcher.Constraint("Vertical", 13, 3, 14, 3),
    Sketcher.Constraint("Vertical", 14, 3, 15, 3),
    Sketcher.Constraint("Vertical", 15, 3, 16, 3),
    Sketcher.Constraint("Equal", 1, 0),
    Sketcher.Constraint("Radius", 2, Q("2 mm")),
    Sketcher.Constraint("Diameter", 7, Q("3.2 mm")),
    Sketcher.Constraint("DistanceX", 1, 2, 1, 1, Q("108 mm")),
    Sketcher.Constraint("DistanceY", 2, 3, -1, 1, Q("142 mm")),
    Sketcher.Constraint("DistanceY", 7, 3, -1, 1, Q("242 mm")),
    Sketcher.Constraint("DistanceX", 13, 3, -1, 1, Q("8 mm")),
    Sketcher.Constraint("DistanceY", 8, 2, -1, 1, Q("239 mm")),
    Sketcher.Constraint("DistanceY", 14, 3, 15, 3, Q("80 mm")),
    Sketcher.Constraint("DistanceY", 8, 2, 8, 1, Q("88.94 mm")),
    Sketcher.Constraint("DistanceX", 7, 3, -1, 1, Q("103.1 mm")),
    Sketcher.Constraint("DistanceY", 10, 2, 12, 3, Q("3.6 mm")),
    Sketcher.Constraint("DistanceX", 8, 2, -1, 1, Q("12.63 mm")),
    Sketcher.Constraint("DistanceX", 9, 2, 9, 1, Q("87.2027 mm")),
    Sketcher.Constraint("DistanceY", 14, 3, -1, 1, Q("234.4212 mm")),
])
pocket13 = body.newObject("PartDesign::Pocket", "Pocket012")
pocket13.Profile = sketch23
pocket13.Type = "ThroughAll"
pocket13.Midplane = True

# Sketch on YZ plane
sketch24 = body.newObject("Sketcher::SketchObject", "Sketch023")
sketch24.AttachmentSupport = (doc.getObject("YZ_Plane"), [""])
sketch24.MapMode = "FlatFace"
sketch24.AttachmentOffset = App.Placement(V(0, 0, -34.2), App.Rotation())
sketch24.addGeometry([
    Part.LineSegment(V(-103, -25.4, 0), V(-101.5, -25.4, 0)),
    Part.LineSegment(V(-101.5, -25.4, 0), V(-101.5, -111.9, 0)),
    Part.LineSegment(V(-101.5, -111.9, 0), V(-103, -111.9, 0)),
    Part.LineSegment(V(-103, -111.9, 0), V(-103, -25.4, 0)),
], False)
sketch24.addConstraint([
    Sketcher.Constraint("Coincident", 0, 2, 1, 1),
    Sketcher.Constraint("Coincident", 1, 2, 2, 1),
    Sketcher.Constraint("Coincident", 2, 2, 3, 1),
    Sketcher.Constraint("Coincident", 3, 2, 0, 1),
    Sketcher.Constraint("Horizontal", 0),
    Sketcher.Constraint("Vertical", 1),
    Sketcher.Constraint("Horizontal", 2),
    Sketcher.Constraint("Vertical", 3),
    Sketcher.Constraint("DistanceX", 0, 1, 0, 2, Q("1.5 mm")),
    Sketcher.Constraint("DistanceX", 2, 2, -1, 1, Q("103 mm")),
    Sketcher.Constraint("DistanceY", 1, 2, 1, 1, Q("86.5003 mm")),
    Sketcher.Constraint("DistanceY", 0, 2, -1, 1, Q("25.4182 mm")),
])
pocket14 = body.newObject("PartDesign::Pocket", "Pocket013")
pocket14.Profile = sketch24
pocket14.Length = 10
pocket14.Reversed = True

doc.recompute()
